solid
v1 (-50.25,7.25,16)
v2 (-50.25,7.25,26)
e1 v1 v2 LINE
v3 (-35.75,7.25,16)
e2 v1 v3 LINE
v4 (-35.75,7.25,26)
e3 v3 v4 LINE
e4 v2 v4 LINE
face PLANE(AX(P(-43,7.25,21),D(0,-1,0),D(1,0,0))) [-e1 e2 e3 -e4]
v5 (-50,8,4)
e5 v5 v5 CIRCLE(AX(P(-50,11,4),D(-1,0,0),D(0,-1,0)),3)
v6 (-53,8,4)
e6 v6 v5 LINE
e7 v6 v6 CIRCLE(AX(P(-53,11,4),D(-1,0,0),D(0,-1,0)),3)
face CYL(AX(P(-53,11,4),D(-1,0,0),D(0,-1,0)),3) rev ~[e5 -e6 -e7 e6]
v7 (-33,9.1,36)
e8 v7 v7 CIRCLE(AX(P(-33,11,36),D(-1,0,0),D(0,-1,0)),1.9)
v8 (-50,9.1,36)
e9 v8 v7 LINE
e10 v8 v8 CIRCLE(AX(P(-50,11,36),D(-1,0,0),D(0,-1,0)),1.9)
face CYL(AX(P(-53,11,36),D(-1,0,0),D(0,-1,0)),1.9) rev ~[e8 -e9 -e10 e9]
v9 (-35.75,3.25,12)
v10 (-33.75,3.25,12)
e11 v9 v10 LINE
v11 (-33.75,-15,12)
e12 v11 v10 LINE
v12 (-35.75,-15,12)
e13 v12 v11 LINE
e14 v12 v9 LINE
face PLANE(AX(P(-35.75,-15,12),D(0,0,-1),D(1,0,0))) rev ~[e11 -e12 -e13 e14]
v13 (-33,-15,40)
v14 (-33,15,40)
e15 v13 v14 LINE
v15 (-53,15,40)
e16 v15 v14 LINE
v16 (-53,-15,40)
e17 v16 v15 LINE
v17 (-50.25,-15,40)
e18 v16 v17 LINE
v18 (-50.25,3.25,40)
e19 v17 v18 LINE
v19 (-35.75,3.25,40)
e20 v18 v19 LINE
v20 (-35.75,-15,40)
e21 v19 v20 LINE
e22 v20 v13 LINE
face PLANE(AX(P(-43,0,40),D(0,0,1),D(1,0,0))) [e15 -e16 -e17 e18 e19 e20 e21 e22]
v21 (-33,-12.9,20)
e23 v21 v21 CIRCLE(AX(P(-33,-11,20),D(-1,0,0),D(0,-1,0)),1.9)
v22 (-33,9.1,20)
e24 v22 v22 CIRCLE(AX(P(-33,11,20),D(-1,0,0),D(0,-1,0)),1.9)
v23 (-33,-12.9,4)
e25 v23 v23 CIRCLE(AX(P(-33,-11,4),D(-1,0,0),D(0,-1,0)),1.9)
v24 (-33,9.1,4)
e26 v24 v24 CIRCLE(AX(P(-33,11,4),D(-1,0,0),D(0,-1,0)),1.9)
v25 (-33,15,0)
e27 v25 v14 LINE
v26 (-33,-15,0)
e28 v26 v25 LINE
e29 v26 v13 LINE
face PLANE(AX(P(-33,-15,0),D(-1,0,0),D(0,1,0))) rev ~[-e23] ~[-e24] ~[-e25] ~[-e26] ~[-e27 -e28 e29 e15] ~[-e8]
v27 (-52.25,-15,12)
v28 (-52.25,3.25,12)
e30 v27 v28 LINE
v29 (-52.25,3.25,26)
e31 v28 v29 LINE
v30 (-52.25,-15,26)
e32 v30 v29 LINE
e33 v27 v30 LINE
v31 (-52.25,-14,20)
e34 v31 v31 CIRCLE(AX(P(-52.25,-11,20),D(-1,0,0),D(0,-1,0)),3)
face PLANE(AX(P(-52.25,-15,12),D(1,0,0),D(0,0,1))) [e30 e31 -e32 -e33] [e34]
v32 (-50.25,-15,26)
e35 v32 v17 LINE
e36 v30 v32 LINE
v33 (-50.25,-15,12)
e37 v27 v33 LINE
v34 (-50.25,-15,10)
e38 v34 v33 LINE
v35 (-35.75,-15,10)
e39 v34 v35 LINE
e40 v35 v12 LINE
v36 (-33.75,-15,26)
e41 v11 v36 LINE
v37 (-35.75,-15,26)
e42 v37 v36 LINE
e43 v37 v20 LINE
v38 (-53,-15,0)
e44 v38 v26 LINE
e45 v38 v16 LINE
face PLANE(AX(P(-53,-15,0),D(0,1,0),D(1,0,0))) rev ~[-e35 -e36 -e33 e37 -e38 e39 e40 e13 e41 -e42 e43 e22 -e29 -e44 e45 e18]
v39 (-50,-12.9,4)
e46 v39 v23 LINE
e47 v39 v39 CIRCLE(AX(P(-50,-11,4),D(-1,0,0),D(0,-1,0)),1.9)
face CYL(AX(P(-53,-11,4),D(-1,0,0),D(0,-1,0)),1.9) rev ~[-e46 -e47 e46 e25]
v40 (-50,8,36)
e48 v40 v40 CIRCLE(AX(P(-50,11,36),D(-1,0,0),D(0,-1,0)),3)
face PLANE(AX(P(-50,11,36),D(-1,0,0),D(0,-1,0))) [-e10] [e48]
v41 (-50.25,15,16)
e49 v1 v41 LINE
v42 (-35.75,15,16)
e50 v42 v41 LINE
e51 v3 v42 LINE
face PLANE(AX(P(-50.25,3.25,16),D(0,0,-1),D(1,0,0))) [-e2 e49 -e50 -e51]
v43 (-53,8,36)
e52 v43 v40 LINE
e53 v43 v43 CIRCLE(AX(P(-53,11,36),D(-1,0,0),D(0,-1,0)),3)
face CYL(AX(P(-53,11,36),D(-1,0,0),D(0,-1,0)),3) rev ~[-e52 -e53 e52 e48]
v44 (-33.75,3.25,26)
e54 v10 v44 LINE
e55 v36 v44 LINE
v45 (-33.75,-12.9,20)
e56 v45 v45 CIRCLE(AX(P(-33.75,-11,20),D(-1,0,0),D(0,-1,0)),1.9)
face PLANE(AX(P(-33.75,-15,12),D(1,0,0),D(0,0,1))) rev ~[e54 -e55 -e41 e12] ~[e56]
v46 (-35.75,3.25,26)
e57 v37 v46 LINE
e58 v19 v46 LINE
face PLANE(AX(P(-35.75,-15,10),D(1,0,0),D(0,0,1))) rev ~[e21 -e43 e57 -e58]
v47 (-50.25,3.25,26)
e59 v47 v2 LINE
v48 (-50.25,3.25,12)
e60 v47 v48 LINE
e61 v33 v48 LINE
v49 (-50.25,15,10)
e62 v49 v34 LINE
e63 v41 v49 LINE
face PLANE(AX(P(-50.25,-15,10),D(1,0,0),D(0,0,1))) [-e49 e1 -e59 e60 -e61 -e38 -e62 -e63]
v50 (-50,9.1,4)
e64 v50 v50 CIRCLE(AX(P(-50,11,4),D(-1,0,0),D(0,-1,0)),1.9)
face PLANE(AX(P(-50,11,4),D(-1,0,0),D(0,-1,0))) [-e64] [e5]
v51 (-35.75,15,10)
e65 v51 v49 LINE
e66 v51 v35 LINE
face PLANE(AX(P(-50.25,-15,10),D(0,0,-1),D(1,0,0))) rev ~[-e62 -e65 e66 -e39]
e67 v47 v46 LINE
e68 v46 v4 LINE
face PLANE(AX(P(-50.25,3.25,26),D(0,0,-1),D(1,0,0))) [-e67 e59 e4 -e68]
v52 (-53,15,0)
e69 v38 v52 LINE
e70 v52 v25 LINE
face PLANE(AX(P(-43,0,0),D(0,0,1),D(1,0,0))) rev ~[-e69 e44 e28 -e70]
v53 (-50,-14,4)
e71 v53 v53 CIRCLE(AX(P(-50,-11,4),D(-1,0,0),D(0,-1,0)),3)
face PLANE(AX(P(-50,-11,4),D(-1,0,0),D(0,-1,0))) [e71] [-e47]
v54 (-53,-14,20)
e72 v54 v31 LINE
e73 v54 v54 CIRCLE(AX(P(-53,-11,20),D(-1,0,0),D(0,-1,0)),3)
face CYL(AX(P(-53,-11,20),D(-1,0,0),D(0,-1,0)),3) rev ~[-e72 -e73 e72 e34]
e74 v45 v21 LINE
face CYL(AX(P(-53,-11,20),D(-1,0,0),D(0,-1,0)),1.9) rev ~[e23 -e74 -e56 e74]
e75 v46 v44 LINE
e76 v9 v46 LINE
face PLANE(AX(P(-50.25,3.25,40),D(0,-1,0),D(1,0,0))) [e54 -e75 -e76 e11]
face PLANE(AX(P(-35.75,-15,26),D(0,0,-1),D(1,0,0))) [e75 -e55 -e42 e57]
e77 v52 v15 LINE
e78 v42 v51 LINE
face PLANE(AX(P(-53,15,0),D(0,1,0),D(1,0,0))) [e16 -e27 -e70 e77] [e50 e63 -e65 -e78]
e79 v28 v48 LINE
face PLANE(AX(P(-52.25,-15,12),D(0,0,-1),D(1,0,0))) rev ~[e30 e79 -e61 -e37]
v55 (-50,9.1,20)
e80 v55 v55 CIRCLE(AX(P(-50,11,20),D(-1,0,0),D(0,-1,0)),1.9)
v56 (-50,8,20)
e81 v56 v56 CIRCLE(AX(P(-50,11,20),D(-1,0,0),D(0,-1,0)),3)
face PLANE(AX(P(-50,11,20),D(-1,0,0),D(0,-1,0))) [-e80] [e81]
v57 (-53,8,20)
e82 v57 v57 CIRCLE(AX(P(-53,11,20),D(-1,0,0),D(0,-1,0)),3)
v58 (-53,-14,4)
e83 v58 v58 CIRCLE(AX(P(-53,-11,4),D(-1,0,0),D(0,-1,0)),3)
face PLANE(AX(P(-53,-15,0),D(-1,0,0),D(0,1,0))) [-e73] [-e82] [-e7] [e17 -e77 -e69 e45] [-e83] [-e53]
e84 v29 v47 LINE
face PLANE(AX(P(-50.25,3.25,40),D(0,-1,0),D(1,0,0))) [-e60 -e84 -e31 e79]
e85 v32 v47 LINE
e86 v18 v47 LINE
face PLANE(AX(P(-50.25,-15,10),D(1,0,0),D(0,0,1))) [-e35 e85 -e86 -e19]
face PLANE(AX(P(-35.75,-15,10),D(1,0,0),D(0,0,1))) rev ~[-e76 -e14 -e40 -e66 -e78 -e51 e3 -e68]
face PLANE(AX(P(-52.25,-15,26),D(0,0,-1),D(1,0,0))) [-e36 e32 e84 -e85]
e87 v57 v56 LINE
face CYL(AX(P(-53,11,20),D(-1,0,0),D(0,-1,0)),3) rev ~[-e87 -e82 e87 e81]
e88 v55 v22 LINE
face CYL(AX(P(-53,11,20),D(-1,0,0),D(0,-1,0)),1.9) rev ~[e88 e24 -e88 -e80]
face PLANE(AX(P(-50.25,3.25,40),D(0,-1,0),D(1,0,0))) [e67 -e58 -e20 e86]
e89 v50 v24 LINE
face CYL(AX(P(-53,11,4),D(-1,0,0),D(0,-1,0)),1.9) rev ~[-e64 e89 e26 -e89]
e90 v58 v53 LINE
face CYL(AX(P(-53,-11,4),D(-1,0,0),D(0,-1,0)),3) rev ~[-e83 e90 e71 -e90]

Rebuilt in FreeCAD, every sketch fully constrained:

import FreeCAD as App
import Part
import Sketcher

V = App.Vector
Q = App.Units.Quantity


def add_polygon(sketch, points):
    """Adds a closed chain of lines whose ends are joined by coincident constraints."""
    first, n = sketch.GeometryCount, len(points)
    for a, b in zip(points, points[1:] + points[:1]):
        sketch.addGeometry(Part.LineSegment(App.Vector(*a, 0), App.Vector(*b, 0)), False)
    for i in range(n):
        sketch.addConstraint(Sketcher.Constraint("Coincident", first + i, 2, first + (i + 1) % n, 1))

doc = App.newDocument("Part")
body = doc.addObject("PartDesign::Body", "Body")

# Sketch on XY plane
sketch1 = body.newObject("Sketcher::SketchObject", "Sketch")
sketch1.AttachmentSupport = (doc.getObject("XY_Plane"), [""])
sketch1.MapMode = "FlatFace"
add_polygon(sketch1, [(-53, 15), (-53, -15), (-33, -15), (-33, 15)])  # lines 0-3
sketch1.addConstraint([
    Sketcher.Constraint("Vertical", 0),
    Sketcher.Constraint("Horizontal", 1),
    Sketcher.Constraint("Vertical", 2),
    Sketcher.Constraint("Horizontal", 3),
    Sketcher.Constraint("DistanceX", 1, 1, 1, 2, Q("20 mm")),
    Sketcher.Constraint("DistanceY", 0, 2, 0, 1, Q("30 mm")),
    Sketcher.Constraint("DistanceX", 0, 2, -1, 1, Q("53 mm")),
    Sketcher.Constraint("DistanceY", 0, 2, -1, 1, Q("15 mm")),
])
pad1 = body.newObject("PartDesign::Pad", "Pad")
pad1.Profile = sketch1
pad1.Length = 40

# Sketch on YZ plane
sketch2 = body.newObject("Sketcher::SketchObject", "Sketch001")
sketch2.AttachmentSupport = (doc.getObject("YZ_Plane"), [""])
sketch2.MapMode = "FlatFace"
sketch2.AttachmentOffset = App.Placement(V(0, 0, -53), App.Rotation())
sketch2.addGeometry([
    Part.Circle(V(11, 36, 0), V(0, 0, 1), 1.9),  # 0
    Part.Circle(V(-11, 20, 0), V(0, 0, 1), 1.9),  # 1
    Part.Circle(V(11, 20, 0), V(0, 0, 1), 1.9),  # 2
    Part.Circle(V(11, 4, 0), V(0, 0, 1), 1.9),  # 3
    Part.Circle(V(-11, 4, 0), V(0, 0, 1), 1.9),  # 4
], False)
sketch2.addConstraint([
    Sketcher.Constraint("Equal", 0, 1),
    Sketcher.Constraint("Equal", 1, 2),
    Sketcher.Constraint("Equal", 2, 3),
    Sketcher.Constraint("Equal", 3, 4),
    Sketcher.Constraint("Symmetric", 1, 3, 2, 3, -2),
    Sketcher.Constraint("Symmetric", 3, 3, 4, 3, -2),
    Sketcher.Constraint("Vertical", 0, 3, 2, 3),
    Sketcher.Constraint("Vertical", 2, 3, 3, 3),
    Sketcher.Constraint("Diameter", 0, Q("3.8 mm")),
    Sketcher.Constraint("DistanceX", -1, 1, 0, 3, Q("11 mm")),
    Sketcher.Constraint("DistanceY", -1, 1, 0, 3, Q("36 mm")),
    Sketcher.Constraint("DistanceY", -1, 1, 1, 3, Q("20 mm")),
    Sketcher.Constraint("DistanceY", -1, 1, 3, 3, Q("4 mm")),
])
pocket1 = body.newObject("PartDesign::Pocket", "Pocket")
pocket1.Profile = sketch2
pocket1.Type = "ThroughAll"
pocket1.Reversed = True

# Sketch on YZ plane
sketch3 = body.newObject("Sketcher::SketchObject", "Sketch002")
sketch3.AttachmentSupport = (doc.getObject("YZ_Plane"), [""])
sketch3.MapMode = "FlatFace"
sketch3.AttachmentOffset = App.Placement(V(0, 0, -53), App.Rotation())
sketch3.addGeometry([
    Part.Circle(V(11, 36, 0), V(0, 0, 1), 3),  # 0
    Part.Circle(V(11, 20, 0), V(0, 0, 1), 3),  # 1
    Part.Circle(V(11, 4, 0), V(0, 0, 1), 3),  # 2
    Part.Circle(V(-11, 4, 0), V(0, 0, 1), 3),  # 3
    Part.Circle(V(-11, 20, 0), V(0, 0, 1), 3),  # 4
], False)
sketch3.addConstraint([
    Sketcher.Constraint("Equal", 0, 1),
    Sketcher.Constraint("Equal", 1, 2),
    Sketcher.Constraint("Equal", 2, 3),
    Sketcher.Constraint("Equal", 3, 4),
    Sketcher.Constraint("Symmetric", 2, 3, 3, 3, -2),
    Sketcher.Constraint("Symmetric", 1, 3, 4, 3, -2),
    Sketcher.Constraint("Vertical", 0, 3, 1, 3),
    Sketcher.Constraint("Vertical", 1, 3, 2, 3),
    Sketcher.Constraint("Diameter", 0, Q("6 mm")),
    Sketcher.Constraint("DistanceX", -1, 1, 0, 3, Q("11 mm")),
    Sketcher.Constraint("DistanceY", -1, 1, 0, 3, Q("36 mm")),
    Sketcher.Constraint("DistanceY", -1, 1, 1, 3, Q("20 mm")),
    Sketcher.Constraint("DistanceY", -1, 1, 2, 3, Q("4 mm")),
])
pocket2 = body.newObject("PartDesign::Pocket", "Pocket001")
pocket2.Profile = sketch3
pocket2.Length = 3
pocket2.Reversed = True

# Sketch on XY plane
sketch4 = body.newObject("Sketcher::SketchObject", "Sketch003")
sketch4.AttachmentSupport = (doc.getObject("XY_Plane"), [""])
sketch4.MapMode = "FlatFace"
sketch4.AttachmentOffset = App.Placement(V(0, 0, 40), App.Rotation())
sketch4.addGeometry(Part.Circle(V(-43, -4, 0), V(0, 0, 1), 0.5), False)
sketch4.addConstraint([
    Sketcher.Constraint("Diameter", 0, Q("1 mm")),
    Sketcher.Constraint("DistanceX", 0, 3, -1, 1, Q("43 mm")),
    Sketcher.Constraint("DistanceY", 0, 3, -1, 1, Q("4 mm")),
])
pocket3 = body.newObject("PartDesign::Pocket", "Pocket002")
pocket3.Profile = sketch4
pocket3.Length = 0.5

# Sketch on XY plane
sketch5 = body.newObject("Sketcher::SketchObject", "Sketch004")
sketch5.AttachmentSupport = (doc.getObject("XY_Plane"), [""])
sketch5.MapMode = "FlatFace"
sketch5.AttachmentOffset = App.Placement(V(0, 0, 40), App.Rotation())
add_polygon(sketch5, [(-50, 3), (-50, -11), (-36, -11), (-36, 3)])  # lines 0-3
sketch5.addConstraint([
    Sketcher.Constraint("Vertical", 0),
    Sketcher.Constraint("Horizontal", 1),
    Sketcher.Constraint("Vertical", 2),
    Sketcher.Constraint("Horizontal", 3),
    Sketcher.Constraint("Equal", 3, 0),
    Sketcher.Constraint("DistanceX", 1, 1, 1, 2, Q("14.5 mm")),
    Sketcher.Constraint("DistanceX", 0, 2, -1, 1, Q("50.25 mm")),
    Sketcher.Constraint("DistanceY", 0, 2, -1, 1, Q("11.25 mm")),
])
pocket4 = body.newObject("PartDesign::Pocket", "Pocket003")
pocket4.Profile = sketch5
pocket4.Length = 30

# Sketch on XZ plane
sketch6 = body.newObject("Sketcher::SketchObject", "Sketch005")
sketch6.AttachmentSupport = (doc.getObject("XZ_Plane"), [""])
sketch6.MapMode = "FlatFace"
sketch6.AttachmentOffset = App.Placement(V(0, 0, 15), App.Rotation())
add_polygon(sketch6, [(-50, 40), (-50, 10), (-36, 10), (-36, 40)])  # lines 0-3
sketch6.addConstraint([
    Sketcher.Constraint("Vertical", 0),
    Sketcher.Constraint("Horizontal", 1),
    Sketcher.Constraint("Vertical", 2),
    Sketcher.Constraint("Horizontal", 3),
    Sketcher.Constraint("DistanceY", 0, 2, 0, 1, Q("30 mm")),
    Sketcher.Constraint("DistanceX", 1, 1, 1, 2, Q("14.5 mm")),
    Sketcher.Constraint("DistanceY", -1, 1, 0, 2, Q("10 mm")),
    Sketcher.Constraint("DistanceX", 0, 2, -1, 1, Q("50.25 mm")),
])
pocket5 = body.newObject("PartDesign::Pocket", "Pocket004")
pocket5.Profile = sketch6
pocket5.Length = 5

# Sketch on XZ plane
sketch7 = body.newObject("Sketcher::SketchObject", "Sketch006")
sketch7.AttachmentSupport = (doc.getObject("XZ_Plane"), [""])
sketch7.MapMode = "FlatFace"
sketch7.AttachmentOffset = App.Placement(V(0, 0, -3.25), App.Rotation())
add_polygon(sketch7, [(-50, 16), (-50, 10), (-36, 10), (-36, 16)])  # lines 0-3
sketch7.addConstraint([
    Sketcher.Constraint("Vertical", 0),
    Sketcher.Constraint("Horizontal", 1),
    Sketcher.Constraint("Vertical", 2),
    Sketcher.Constraint("Horizontal", 3),
    Sketcher.Constraint("DistanceY", 0, 2, 0, 1, Q("6 mm")),
    Sketcher.Constraint("DistanceX", 1, 1, 1, 2, Q("14.5 mm")),
    Sketcher.Constraint("DistanceY", -1, 1, 0, 2, Q("10 mm")),
    Sketcher.Constraint("DistanceX", 0, 2, -1, 1, Q("50.25 mm")),
])
pocket6 = body.newObject("PartDesign::Pocket", "Pocket005")
pocket6.Profile = sketch7
pocket6.Type = "ThroughAll"

# Sketch on XZ plane
sketch8 = body.newObject("Sketcher::SketchObject", "Sketch007")
sketch8.AttachmentSupport = (doc.getObject("XZ_Plane"), [""])
sketch8.MapMode = "FlatFace"
sketch8.AttachmentOffset = App.Placement(V(0, 0, 15), App.Rotation())
add_polygon(sketch8, [(-52.2, 26), (-52.2, 12), (-50.2, 12), (-50.2, 26)])  # lines 0-3
add_polygon(sketch8, [(-35.8, 26), (-35.8, 12), (-33.8, 12), (-33.8, 26)])  # lines 4-7
sketch8.addConstraint([
    Sketcher.Constraint("Vertical", 0),
    Sketcher.Constraint("Horizontal", 1),
    Sketcher.Constraint("Vertical", 2),
    Sketcher.Constraint("Horizontal", 3),
    Sketcher.Constraint("Vertical", 4),
    Sketcher.Constraint("Horizontal", 5),
    Sketcher.Constraint("Vertical", 6),
    Sketcher.Constraint("Horizontal", 7),
    Sketcher.Constraint("Horizontal", 1, 2, 4, 2),
    Sketcher.Constraint("Horizontal", 3, 2, 6, 2),
    Sketcher.Constraint("Equal", 3, 5),
    Sketcher.Constraint("DistanceX", 1, 1, 1, 2, Q("2 mm")),
    Sketcher.Constraint("DistanceY", 0, 2, 0, 1, Q("14 mm")),
    Sketcher.Constraint("DistanceY", -1, 1, 0, 2, Q("12 mm")),
    Sketcher.Constraint("DistanceX", 1, 2, 4, 2, Q("14.5 mm")),
    Sketcher.Constraint("DistanceX", 0, 2, -1, 1, Q("52.25 mm")),
])
pocket7 = body.newObject("PartDesign::Pocket", "Pocket006")
pocket7.Profile = sketch8
pocket7.Length = 18.25

# Sketch on XZ plane
sketch9 = body.newObject("Sketcher::SketchObject", "Sketch008")
sketch9.AttachmentSupport = (doc.getObject("XZ_Plane"), [""])
sketch9.MapMode = "FlatFace"
sketch9.AttachmentOffset = App.Placement(V(0, 0, -3.25), App.Rotation())
add_polygon(sketch9, [(-50, 26), (-50, 16), (-36, 16), (-36, 26)])  # lines 0-3
sketch9.addConstraint([
    Sketcher.Constraint("Vertical", 0),
    Sketcher.Constraint("Horizontal", 1),
    Sketcher.Constraint("Vertical", 2),
    Sketcher.Constraint("Horizontal", 3),
    Sketcher.Constraint("DistanceY", 0, 2, 0, 1, Q("10 mm")),
    Sketcher.Constraint("DistanceX", 1, 1, 1, 2, Q("14.5 mm")),
    Sketcher.Constraint("DistanceY", -1, 1, 0, 2, Q("16 mm")),
    Sketcher.Constraint("DistanceX", 0, 2, -1, 1, Q("50.25 mm")),
])
pocket8 = body.newObject("PartDesign::Pocket", "Pocket007")
pocket8.Profile = sketch9
pocket8.Length = 4

doc.recompute()
